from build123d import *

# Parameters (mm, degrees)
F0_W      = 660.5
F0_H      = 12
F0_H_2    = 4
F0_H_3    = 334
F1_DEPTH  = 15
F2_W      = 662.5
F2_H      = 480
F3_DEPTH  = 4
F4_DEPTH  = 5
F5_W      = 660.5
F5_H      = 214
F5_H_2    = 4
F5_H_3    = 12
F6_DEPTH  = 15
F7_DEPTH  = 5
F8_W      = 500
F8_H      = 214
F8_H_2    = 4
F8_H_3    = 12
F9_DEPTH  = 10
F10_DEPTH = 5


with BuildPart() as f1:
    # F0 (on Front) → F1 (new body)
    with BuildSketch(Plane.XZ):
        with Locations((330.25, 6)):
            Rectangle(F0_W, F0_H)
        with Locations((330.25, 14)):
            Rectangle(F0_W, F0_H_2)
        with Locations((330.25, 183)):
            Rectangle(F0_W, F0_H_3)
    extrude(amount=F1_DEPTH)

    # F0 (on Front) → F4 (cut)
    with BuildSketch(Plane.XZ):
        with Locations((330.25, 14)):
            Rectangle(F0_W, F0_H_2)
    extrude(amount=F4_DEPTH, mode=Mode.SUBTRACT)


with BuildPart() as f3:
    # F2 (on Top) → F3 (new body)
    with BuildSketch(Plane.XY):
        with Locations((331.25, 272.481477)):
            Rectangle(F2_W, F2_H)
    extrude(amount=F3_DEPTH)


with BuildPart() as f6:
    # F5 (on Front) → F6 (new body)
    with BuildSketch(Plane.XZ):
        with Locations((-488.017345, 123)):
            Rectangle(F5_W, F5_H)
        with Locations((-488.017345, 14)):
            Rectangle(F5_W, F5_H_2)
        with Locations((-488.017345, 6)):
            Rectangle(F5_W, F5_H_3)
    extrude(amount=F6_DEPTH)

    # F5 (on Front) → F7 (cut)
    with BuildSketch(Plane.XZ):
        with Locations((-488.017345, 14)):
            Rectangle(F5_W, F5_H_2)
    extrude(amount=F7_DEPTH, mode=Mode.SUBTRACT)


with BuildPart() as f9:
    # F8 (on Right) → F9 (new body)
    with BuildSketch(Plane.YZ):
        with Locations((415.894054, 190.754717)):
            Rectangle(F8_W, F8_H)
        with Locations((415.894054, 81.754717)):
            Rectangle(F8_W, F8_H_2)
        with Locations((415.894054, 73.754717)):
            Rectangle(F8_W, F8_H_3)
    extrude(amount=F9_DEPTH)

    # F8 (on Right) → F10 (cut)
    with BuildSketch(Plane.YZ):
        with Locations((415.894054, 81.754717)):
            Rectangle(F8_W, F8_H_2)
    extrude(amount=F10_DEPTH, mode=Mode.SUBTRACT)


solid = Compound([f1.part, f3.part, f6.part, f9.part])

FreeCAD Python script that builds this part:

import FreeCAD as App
import Part
import Sketcher
Q = App.Units.Quantity

doc = App.newDocument("Part")
params = doc.addObject("Spreadsheet::Sheet", "Params")
for row, (alias, value) in enumerate([
    ("sketch1_height", "350 mm"),
    ("sketch1_width", "660.5 mm"),
    ("pad1_length", "15 mm"),
    ("sketch2_height", "4 mm"),
    ("sketch2_width", "660.5 mm"),
    ("pocket1_length", "5 mm"),
    ("sketch3_height", "480 mm"),
    ("sketch3_width", "662.5 mm"),
    ("pad2_length", "4 mm"),
    ("sketch4_height", "230 mm"),
    ("sketch4_width", "660.5 mm"),
    ("pad3_length", "15 mm"),
    ("sketch5_height", "4 mm"),
    ("sketch5_width", "660.5 mm"),
    ("pocket2_length", "5 mm"),
    ("sketch6_width", "500 mm"),
    ("sketch6_height", "230 mm"),
    ("pad4_length", "10 mm"),
    ("sketch7_width", "500 mm"),
    ("sketch7_height", "4 mm"),
    ("pocket3_length", "5 mm"),
], start=1):
    params.set(f"A{row}", alias)
    params.set(f"B{row}", "=" + value)
    params.setAlias(f"B{row}", alias)

body = doc.addObject("PartDesign::Body", "Body")

sketch1 = body.newObject("Sketcher::SketchObject", "Sketch")
sketch1.AttachmentSupport = (doc.getObject("XZ_Plane"), [""])
sketch1.MapMode = "FlatFace"
sketch1.addGeometry(Part.LineSegment(App.Vector(0, 0, 0), App.Vector(660, 0, 0)), False)
sketch1.addGeometry(Part.LineSegment(App.Vector(660, 0, 0), App.Vector(660, 350, 0)), False)
sketch1.addGeometry(Part.LineSegment(App.Vector(660, 350, 0), App.Vector(0, 350, 0)), False)
sketch1.addGeometry(Part.LineSegment(App.Vector(0, 350, 0), App.Vector(0, 0, 0)), False)
sketch1.addConstraint(Sketcher.Constraint("Coincident", 0, 2, 1, 1))
sketch1.addConstraint(Sketcher.Constraint("Coincident", 1, 2, 2, 1))
sketch1.addConstraint(Sketcher.Constraint("Coincident", 2, 2, 3, 1))
sketch1.addConstraint(Sketcher.Constraint("Coincident", 3, 2, 0, 1))
sketch1.addConstraint(Sketcher.Constraint("Horizontal", 0))
sketch1.addConstraint(Sketcher.Constraint("Vertical", 1))
sketch1.addConstraint(Sketcher.Constraint("Horizontal", 2))
sketch1.addConstraint(Sketcher.Constraint("Vertical", 3))
sketch1.addConstraint(Sketcher.Constraint("Coincident", 3, 2, -1, 1))
sketch1.addConstraint(Sketcher.Constraint("DistanceY", 1, 1, 1, 2, Q("350 mm")))
sketch1.addConstraint(Sketcher.Constraint("DistanceX", 0, 1, 0, 2, Q("660.5 mm")))
sketch1.setExpression("Constraints[9]", "Params.sketch1_height")
sketch1.setExpression("Constraints[10]", "Params.sketch1_width")
pad1 = body.newObject("PartDesign::Pad", "Pad")
pad1.Profile = sketch1
pad1.setExpression("Length", "Params.pad1_length")

sketch2 = body.newObject("Sketcher::SketchObject", "Sketch001")
sketch2.AttachmentSupport = (doc.getObject("XZ_Plane"), [""])
sketch2.MapMode = "FlatFace"
sketch2.addGeometry(Part.LineSegment(App.Vector(0, 16, 0), App.Vector(0, 12, 0)), False)
sketch2.addGeometry(Part.LineSegment(App.Vector(0, 12, 0), App.Vector(660.5, 12, 0)), False)
sketch2.addGeometry(Part.LineSegment(App.Vector(660.5, 12, 0), App.Vector(660.5, 16, 0)), False)
sketch2.addGeometry(Part.LineSegment(App.Vector(660.5, 16, 0), App.Vector(0, 16, 0)), False)
sketch2.addConstraint(Sketcher.Constraint("Coincident", 0, 2, 1, 1))
sketch2.addConstraint(Sketcher.Constraint("Coincident", 1, 2, 2, 1))
sketch2.addConstraint(Sketcher.Constraint("Coincident", 2, 2, 3, 1))
sketch2.addConstraint(Sketcher.Constraint("Coincident", 3, 2, 0, 1))
sketch2.addConstraint(Sketcher.Constraint("Vertical", 0))
sketch2.addConstraint(Sketcher.Constraint("Horizontal", 1))
sketch2.addConstraint(Sketcher.Constraint("Vertical", 2))
sketch2.addConstraint(Sketcher.Constraint("Horizontal", 3))
sketch2.addConstraint(Sketcher.Constraint("PointOnObject", 0, 2, -2))
sketch2.addConstraint(Sketcher.Constraint("DistanceY", 0, 2, 0, 1, Q("4 mm")))
sketch2.addConstraint(Sketcher.Constraint("DistanceX", 1, 1, 1, 2, Q("660.5 mm")))
sketch2.addConstraint(Sketcher.Constraint("DistanceY", -1, 1, 0, 2, Q("12 mm")))
sketch2.setExpression("Constraints[9]", "Params.sketch2_height")
sketch2.setExpression("Constraints[10]", "Params.sketch2_width")
pocket1 = body.newObject("PartDesign::Pocket", "Pocket")
pocket1.Profile = sketch2
pocket1.setExpression("Length", "Params.pocket1_length")
pocket1.Reversed = True
body2 = doc.addObject("PartDesign::Body", "Body001")

sketch3 = body2.newObject("Sketcher::SketchObject", "Sketch002")
sketch3.AttachmentSupport = (doc.getObject("XY_Plane001"), [""])
sketch3.MapMode = "FlatFace"
sketch3.addGeometry(Part.LineSegment(App.Vector(0, 512, 0), App.Vector(0, 32, 0)), False)
sketch3.addGeometry(Part.LineSegment(App.Vector(0, 32, 0), App.Vector(662, 32, 0)), False)
sketch3.addGeometry(Part.LineSegment(App.Vector(662, 32, 0), App.Vector(662, 512, 0)), False)
sketch3.addGeometry(Part.LineSegment(App.Vector(662, 512, 0), App.Vector(0, 512, 0)), False)
sketch3.addConstraint(Sketcher.Constraint("Coincident", 0, 2, 1, 1))
sketch3.addConstraint(Sketcher.Constraint("Coincident", 1, 2, 2, 1))
sketch3.addConstraint(Sketcher.Constraint("Coincident", 2, 2, 3, 1))
sketch3.addConstraint(Sketcher.Constraint("Coincident", 3, 2, 0, 1))
sketch3.addConstraint(Sketcher.Constraint("Vertical", 0))
sketch3.addConstraint(Sketcher.Constraint("Horizontal", 1))
sketch3.addConstraint(Sketcher.Constraint("Vertical", 2))
sketch3.addConstraint(Sketcher.Constraint("Horizontal", 3))
sketch3.addConstraint(Sketcher.Constraint("PointOnObject", 0, 2, -2))
sketch3.addConstraint(Sketcher.Constraint("DistanceY", 0, 2, 0, 1, Q("480 mm")))
sketch3.addConstraint(Sketcher.Constraint("DistanceX", 1, 1, 1, 2, Q("662.5 mm")))
sketch3.addConstraint(Sketcher.Constraint("DistanceY", -1, 1, 0, 2, Q("32.481477 mm")))
sketch3.setExpression("Constraints[9]", "Params.sketch3_height")
sketch3.setExpression("Constraints[10]", "Params.sketch3_width")
pad2 = body2.newObject("PartDesign::Pad", "Pad001")
pad2.Profile = sketch3
pad2.setExpression("Length", "Params.pad2_length")
body3 = doc.addObject("PartDesign::Body", "Body002")

sketch4 = body3.newObject("Sketcher::SketchObject", "Sketch003")
sketch4.AttachmentSupport = (doc.getObject("XZ_Plane002"), [""])
sketch4.MapMode = "FlatFace"
sketch4.addGeometry(Part.LineSegment(App.Vector(-818, 230, 0), App.Vector(-818, 0, 0)), False)
sketch4.addGeometry(Part.LineSegment(App.Vector(-818, 0, 0), App.Vector(-158, 0, 0)), False)
sketch4.addGeometry(Part.LineSegment(App.Vector(-158, 0, 0), App.Vector(-158, 230, 0)), False)
sketch4.addGeometry(Part.LineSegment(App.Vector(-158, 230, 0), App.Vector(-818, 230, 0)), False)
sketch4.addConstraint(Sketcher.Constraint("Coincident", 0, 2, 1, 1))
sketch4.addConstraint(Sketcher.Constraint("Coincident", 1, 2, 2, 1))
sketch4.addConstraint(Sketcher.Constraint("Coincident", 2, 2, 3, 1))
sketch4.addConstraint(Sketcher.Constraint("Coincident", 3, 2, 0, 1))
sketch4.addConstraint(Sketcher.Constraint("Vertical", 0))
sketch4.addConstraint(Sketcher.Constraint("Horizontal", 1))
sketch4.addConstraint(Sketcher.Constraint("Vertical", 2))
sketch4.addConstraint(Sketcher.Constraint("Horizontal", 3))
sketch4.addConstraint(Sketcher.Constraint("PointOnObject", 0, 2, -1))
sketch4.addConstraint(Sketcher.Constraint("DistanceY", 0, 2, 0, 1, Q("230 mm")))
sketch4.addConstraint(Sketcher.Constraint("DistanceX", 1, 1, 1, 2, Q("660.5 mm")))
sketch4.addConstraint(Sketcher.Constraint("DistanceX", 0, 2, -1, 1, Q("818.267345 mm")))
sketch4.setExpression("Constraints[9]", "Params.sketch4_height")
sketch4.setExpression("Constraints[10]", "Params.sketch4_width")
pad3 = body3.newObject("PartDesign::Pad", "Pad002")
pad3.Profile = sketch4
pad3.setExpression("Length", "Params.pad3_length")

sketch5 = body3.newObject("Sketcher::SketchObject", "Sketch004")
sketch5.AttachmentSupport = (doc.getObject("XZ_Plane002"), [""])
sketch5.MapMode = "FlatFace"
sketch5.addGeometry(Part.LineSegment(App.Vector(-818.3, 16, 0), App.Vector(-818.3, 12, 0)), False)
sketch5.addGeometry(Part.LineSegment(App.Vector(-818.3, 12, 0), App.Vector(-157.8, 12, 0)), False)
sketch5.addGeometry(Part.LineSegment(App.Vector(-157.8, 12, 0), App.Vector(-157.8, 16, 0)), False)
sketch5.addGeometry(Part.LineSegment(App.Vector(-157.8, 16, 0), App.Vector(-818.3, 16, 0)), False)
sketch5.addConstraint(Sketcher.Constraint("Coincident", 0, 2, 1, 1))
sketch5.addConstraint(Sketcher.Constraint("Coincident", 1, 2, 2, 1))
sketch5.addConstraint(Sketcher.Constraint("Coincident", 2, 2, 3, 1))
sketch5.addConstraint(Sketcher.Constraint("Coincident", 3, 2, 0, 1))
sketch5.addConstraint(Sketcher.Constraint("Vertical", 0))
sketch5.addConstraint(Sketcher.Constraint("Horizontal", 1))
sketch5.addConstraint(Sketcher.Constraint("Vertical", 2))
sketch5.addConstraint(Sketcher.Constraint("Horizontal", 3))
sketch5.addConstraint(Sketcher.Constraint("DistanceY", 0, 2, 0, 1, Q("4 mm")))
sketch5.addConstraint(Sketcher.Constraint("DistanceX", 1, 1, 1, 2, Q("660.5 mm")))
sketch5.addConstraint(Sketcher.Constraint("DistanceY", -1, 1, 0, 2, Q("12 mm")))
sketch5.addConstraint(Sketcher.Constraint("DistanceX", 0, 2, -1, 1, Q("818.267345 mm")))
sketch5.setExpression("Constraints[8]", "Params.sketch5_height")
sketch5.setExpression("Constraints[9]", "Params.sketch5_width")
pocket2 = body3.newObject("PartDesign::Pocket", "Pocket001")
pocket2.Profile = sketch5
pocket2.setExpression("Length", "Params.pocket2_length")
pocket2.Reversed = True
body4 = doc.addObject("PartDesign::Body", "Body003")

sketch6 = body4.newObject("Sketcher::SketchObject", "Sketch005")
sketch6.AttachmentSupport = (doc.getObject("YZ_Plane003"), [""])
sketch6.MapMode = "FlatFace"
sketch6.addGeometry(Part.LineSegment(App.Vector(166, 298, 0), App.Vector(166, 68, 0)), False)
sketch6.addGeometry(Part.LineSegment(App.Vector(166, 68, 0), App.Vector(666, 68, 0)), False)
sketch6.addGeometry(Part.LineSegment(App.Vector(666, 68, 0), App.Vector(666, 298, 0)), False)
sketch6.addGeometry(Part.LineSegment(App.Vector(666, 298, 0), App.Vector(166, 298, 0)), False)
sketch6.addConstraint(Sketcher.Constraint("Coincident", 0, 2, 1, 1))
sketch6.addConstraint(Sketcher.Constraint("Coincident", 1, 2, 2, 1))
sketch6.addConstraint(Sketcher.Constraint("Coincident", 2, 2, 3, 1))
sketch6.addConstraint(Sketcher.Constraint("Coincident", 3, 2, 0, 1))
sketch6.addConstraint(Sketcher.Constraint("Vertical", 0))
sketch6.addConstraint(Sketcher.Constraint("Horizontal", 1))
sketch6.addConstraint(Sketcher.Constraint("Vertical", 2))
sketch6.addConstraint(Sketcher.Constraint("Horizontal", 3))
sketch6.addConstraint(Sketcher.Constraint("DistanceX", 1, 1, 1, 2, Q("500 mm")))
sketch6.addConstraint(Sketcher.Constraint("DistanceY", 0, 2, 0, 1, Q("230 mm")))
sketch6.addConstraint(Sketcher.Constraint("DistanceX", -1, 1, 0, 2, Q("165.894054 mm")))
sketch6.addConstraint(Sketcher.Constraint("DistanceY", -1, 1, 0, 2, Q("67.754717 mm")))
sketch6.setExpression("Constraints[8]", "Params.sketch6_width")
sketch6.setExpression("Constraints[9]", "Params.sketch6_height")
pad4 = body4.newObject("PartDesign::Pad", "Pad003")
pad4.Profile = sketch6
pad4.setExpression("Length", "Params.pad4_length")

sketch7 = body4.newObject("Sketcher::SketchObject", "Sketch006")
sketch7.AttachmentSupport = (doc.getObject("YZ_Plane003"), [""])
sketch7.MapMode = "FlatFace"
sketch7.addGeometry(Part.LineSegment(App.Vector(165.9, 83.8, 0), App.Vector(165.9, 79.8, 0)), False)
sketch7.addGeometry(Part.LineSegment(App.Vector(165.9, 79.8, 0), App.Vector(665.9, 79.8, 0)), False)
sketch7.addGeometry(Part.LineSegment(App.Vector(665.9, 79.8, 0), App.Vector(665.9, 83.8, 0)), False)
sketch7.addGeometry(Part.LineSegment(App.Vector(665.9, 83.8, 0), App.Vector(165.9, 83.8, 0)), False)
sketch7.addConstraint(Sketcher.Constraint("Coincident", 0, 2, 1, 1))
sketch7.addConstraint(Sketcher.Constraint("Coincident", 1, 2, 2, 1))
sketch7.addConstraint(Sketcher.Constraint("Coincident", 2, 2, 3, 1))
sketch7.addConstraint(Sketcher.Constraint("Coincident", 3, 2, 0, 1))
sketch7.addConstraint(Sketcher.Constraint("Vertical", 0))
sketch7.addConstraint(Sketcher.Constraint("Horizontal", 1))
sketch7.addConstraint(Sketcher.Constraint("Vertical", 2))
sketch7.addConstraint(Sketcher.Constraint("Horizontal", 3))
sketch7.addConstraint(Sketcher.Constraint("DistanceX", 1, 1, 1, 2, Q("500 mm")))
sketch7.addConstraint(Sketcher.Constraint("DistanceY", 0, 2, 0, 1, Q("4 mm")))
sketch7.addConstraint(Sketcher.Constraint("DistanceX", -1, 1, 0, 2, Q("165.894054 mm")))
sketch7.addConstraint(Sketcher.Constraint("DistanceY", -1, 1, 0, 2, Q("79.754717 mm")))
sketch7.setExpression("Constraints[8]", "Params.sketch7_width")
sketch7.setExpression("Constraints[9]", "Params.sketch7_height")
pocket3 = body4.newObject("PartDesign::Pocket", "Pocket002")
pocket3.Profile = sketch7
pocket3.setExpression("Length", "Params.pocket3_length")
pocket3.Reversed = True

doc.recompute()
